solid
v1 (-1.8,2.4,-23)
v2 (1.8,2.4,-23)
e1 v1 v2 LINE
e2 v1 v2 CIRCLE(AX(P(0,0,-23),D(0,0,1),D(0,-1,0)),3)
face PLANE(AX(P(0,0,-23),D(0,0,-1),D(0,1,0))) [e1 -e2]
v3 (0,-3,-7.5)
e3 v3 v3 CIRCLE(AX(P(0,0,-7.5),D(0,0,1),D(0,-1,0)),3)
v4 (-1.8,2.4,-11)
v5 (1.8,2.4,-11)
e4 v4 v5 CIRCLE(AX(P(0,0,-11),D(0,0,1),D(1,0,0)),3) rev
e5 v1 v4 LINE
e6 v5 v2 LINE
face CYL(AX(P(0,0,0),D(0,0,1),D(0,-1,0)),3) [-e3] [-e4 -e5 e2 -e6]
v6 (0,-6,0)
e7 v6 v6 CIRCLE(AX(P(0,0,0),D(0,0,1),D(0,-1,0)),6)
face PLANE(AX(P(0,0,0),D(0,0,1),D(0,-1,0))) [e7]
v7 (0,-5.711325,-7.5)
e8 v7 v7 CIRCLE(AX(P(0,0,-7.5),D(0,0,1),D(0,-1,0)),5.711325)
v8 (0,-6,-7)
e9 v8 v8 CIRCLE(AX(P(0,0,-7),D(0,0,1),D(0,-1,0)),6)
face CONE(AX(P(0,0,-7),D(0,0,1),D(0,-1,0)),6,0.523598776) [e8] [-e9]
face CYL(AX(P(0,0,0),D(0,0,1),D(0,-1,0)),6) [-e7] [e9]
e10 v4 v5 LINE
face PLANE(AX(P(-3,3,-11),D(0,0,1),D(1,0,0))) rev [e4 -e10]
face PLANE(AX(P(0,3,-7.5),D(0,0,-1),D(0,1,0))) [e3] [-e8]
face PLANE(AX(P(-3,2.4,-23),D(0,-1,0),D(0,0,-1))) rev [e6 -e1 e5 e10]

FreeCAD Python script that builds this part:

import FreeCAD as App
import Part
import Sketcher
from FreeCAD import Vector
Q = App.Units.Quantity


def add_polygon(sketch, points):
    """Adds a closed chain of lines whose ends are joined by coincident constraints."""
    first, n = sketch.GeometryCount, len(points)
    for a, b in zip(points, points[1:] + points[:1]):
        sketch.addGeometry(Part.LineSegment(App.Vector(*a, 0), App.Vector(*b, 0)), False)
    for i in range(n):
        sketch.addConstraint(Sketcher.Constraint("Coincident", first + i, 2, first + (i + 1) % n, 1))

doc = App.newDocument("Part")
params = doc.addObject("Spreadsheet::Sheet", "Params")
for row, (alias, value) in enumerate([
    ("sketch1_width", "6 mm"),
    ("sketch1_width2", "3 mm"),
    ("sketch1_height", "23 mm"),
    ("sketch1_height2", "7 mm"),
    ("sketch1_height3", "15.5 mm"),
    ("revolution_angle", "360 deg"),
    ("sketch2_height", "12 mm"),
    ("sketch2_width", "0.6 mm"),
    ("pocket1_length", "6 mm"),
], start=1):
    params.set(f"A{row}", alias)
    params.set(f"B{row}", "=" + value)
    params.setAlias(f"B{row}", alias)

body = doc.addObject("PartDesign::Body", "Body")

# Sketch on YZ plane
sketch1 = body.newObject("Sketcher::SketchObject", "Sketch")
sketch1.AttachmentSupport = (doc.getObject("YZ_Plane"), [""])
sketch1.MapMode = "FlatFace"
add_polygon(sketch1, [(0, -23), (0, 0), (6, 0), (6, -7), (5.711325, -7.5), (3, -7.5), (3, -23)])  # lines 0-6
sketch1.addConstraint(Sketcher.Constraint("Vertical", 0))
sketch1.addConstraint(Sketcher.Constraint("Horizontal", 1))
sketch1.addConstraint(Sketcher.Constraint("Vertical", 2))
sketch1.addConstraint(Sketcher.Constraint("Horizontal", 4))
sketch1.addConstraint(Sketcher.Constraint("Vertical", 5))
sketch1.addConstraint(Sketcher.Constraint("Horizontal", 6))
sketch1.addConstraint(Sketcher.Constraint("Coincident", 0, 2, -1, 1))
sketch1.addConstraint(Sketcher.Constraint("DistanceX", 1, 1, 1, 2, 6.0))
sketch1.addConstraint(Sketcher.Constraint("DistanceX", 6, 2, 6, 1, 3.0))
sketch1.addConstraint(Sketcher.Constraint("DistanceY", 0, 1, 0, 2, 23.0))
sketch1.addConstraint(Sketcher.Constraint("DistanceY", 2, 2, 2, 1, 7.0))
sketch1.addConstraint(Sketcher.Constraint("Angle", 3, Q("-120 deg")))
sketch1.addConstraint(Sketcher.Constraint("DistanceY", 5, 2, 5, 1, 15.5))
sketch1.setExpression("Constraints[14]", "Params.sketch1_width")
sketch1.setExpression("Constraints[15]", "Params.sketch1_width2")
sketch1.setExpression("Constraints[16]", "Params.sketch1_height")
sketch1.setExpression("Constraints[17]", "Params.sketch1_height2")
sketch1.setExpression("Constraints[19]", "Params.sketch1_height3")
revolution = body.newObject("PartDesign::Revolution", "Revolution")
revolution.Profile = sketch1
revolution.ReferenceAxis = (sketch1, ["V_Axis"])
revolution.setExpression("Angle", "Params.revolution_angle")

# Sketch on YZ plane
sketch2 = body.newObject("Sketcher::SketchObject", "Sketch001")
sketch2.AttachmentSupport = (doc.getObject("YZ_Plane"), [""])
sketch2.MapMode = "FlatFace"
add_polygon(sketch2, [(3, -11), (2.4, -11), (2.4, -23), (3, -23)])  # lines 0-3
sketch2.addConstraint(Sketcher.Constraint("Horizontal", 0))
sketch2.addConstraint(Sketcher.Constraint("Vertical", 1))
sketch2.addConstraint(Sketcher.Constraint("Horizontal", 2))
sketch2.addConstraint(Sketcher.Constraint("Vertical", 3))
sketch2.addConstraint(Sketcher.Constraint("DistanceY", 1, 2, 1, 1, 12.0))
sketch2.addConstraint(Sketcher.Constraint("DistanceX", 0, 2, 0, 1, 0.6))
sketch2.addConstraint(Sketcher.Constraint("DistanceY", 0, 2, -1, 1, 11.0))
sketch2.addConstraint(Sketcher.Constraint("DistanceX", -1, 1, 2, 2, 3.0))
sketch2.setExpression("Constraints[8]", "Params.sketch2_height")
sketch2.setExpression("Constraints[9]", "Params.sketch2_width")
pocket1 = body.newObject("PartDesign::Pocket", "Pocket")
pocket1.Profile = sketch2
pocket1.setExpression("Length", "Params.pocket1_length")
pocket1.Midplane = True

doc.recompute()
